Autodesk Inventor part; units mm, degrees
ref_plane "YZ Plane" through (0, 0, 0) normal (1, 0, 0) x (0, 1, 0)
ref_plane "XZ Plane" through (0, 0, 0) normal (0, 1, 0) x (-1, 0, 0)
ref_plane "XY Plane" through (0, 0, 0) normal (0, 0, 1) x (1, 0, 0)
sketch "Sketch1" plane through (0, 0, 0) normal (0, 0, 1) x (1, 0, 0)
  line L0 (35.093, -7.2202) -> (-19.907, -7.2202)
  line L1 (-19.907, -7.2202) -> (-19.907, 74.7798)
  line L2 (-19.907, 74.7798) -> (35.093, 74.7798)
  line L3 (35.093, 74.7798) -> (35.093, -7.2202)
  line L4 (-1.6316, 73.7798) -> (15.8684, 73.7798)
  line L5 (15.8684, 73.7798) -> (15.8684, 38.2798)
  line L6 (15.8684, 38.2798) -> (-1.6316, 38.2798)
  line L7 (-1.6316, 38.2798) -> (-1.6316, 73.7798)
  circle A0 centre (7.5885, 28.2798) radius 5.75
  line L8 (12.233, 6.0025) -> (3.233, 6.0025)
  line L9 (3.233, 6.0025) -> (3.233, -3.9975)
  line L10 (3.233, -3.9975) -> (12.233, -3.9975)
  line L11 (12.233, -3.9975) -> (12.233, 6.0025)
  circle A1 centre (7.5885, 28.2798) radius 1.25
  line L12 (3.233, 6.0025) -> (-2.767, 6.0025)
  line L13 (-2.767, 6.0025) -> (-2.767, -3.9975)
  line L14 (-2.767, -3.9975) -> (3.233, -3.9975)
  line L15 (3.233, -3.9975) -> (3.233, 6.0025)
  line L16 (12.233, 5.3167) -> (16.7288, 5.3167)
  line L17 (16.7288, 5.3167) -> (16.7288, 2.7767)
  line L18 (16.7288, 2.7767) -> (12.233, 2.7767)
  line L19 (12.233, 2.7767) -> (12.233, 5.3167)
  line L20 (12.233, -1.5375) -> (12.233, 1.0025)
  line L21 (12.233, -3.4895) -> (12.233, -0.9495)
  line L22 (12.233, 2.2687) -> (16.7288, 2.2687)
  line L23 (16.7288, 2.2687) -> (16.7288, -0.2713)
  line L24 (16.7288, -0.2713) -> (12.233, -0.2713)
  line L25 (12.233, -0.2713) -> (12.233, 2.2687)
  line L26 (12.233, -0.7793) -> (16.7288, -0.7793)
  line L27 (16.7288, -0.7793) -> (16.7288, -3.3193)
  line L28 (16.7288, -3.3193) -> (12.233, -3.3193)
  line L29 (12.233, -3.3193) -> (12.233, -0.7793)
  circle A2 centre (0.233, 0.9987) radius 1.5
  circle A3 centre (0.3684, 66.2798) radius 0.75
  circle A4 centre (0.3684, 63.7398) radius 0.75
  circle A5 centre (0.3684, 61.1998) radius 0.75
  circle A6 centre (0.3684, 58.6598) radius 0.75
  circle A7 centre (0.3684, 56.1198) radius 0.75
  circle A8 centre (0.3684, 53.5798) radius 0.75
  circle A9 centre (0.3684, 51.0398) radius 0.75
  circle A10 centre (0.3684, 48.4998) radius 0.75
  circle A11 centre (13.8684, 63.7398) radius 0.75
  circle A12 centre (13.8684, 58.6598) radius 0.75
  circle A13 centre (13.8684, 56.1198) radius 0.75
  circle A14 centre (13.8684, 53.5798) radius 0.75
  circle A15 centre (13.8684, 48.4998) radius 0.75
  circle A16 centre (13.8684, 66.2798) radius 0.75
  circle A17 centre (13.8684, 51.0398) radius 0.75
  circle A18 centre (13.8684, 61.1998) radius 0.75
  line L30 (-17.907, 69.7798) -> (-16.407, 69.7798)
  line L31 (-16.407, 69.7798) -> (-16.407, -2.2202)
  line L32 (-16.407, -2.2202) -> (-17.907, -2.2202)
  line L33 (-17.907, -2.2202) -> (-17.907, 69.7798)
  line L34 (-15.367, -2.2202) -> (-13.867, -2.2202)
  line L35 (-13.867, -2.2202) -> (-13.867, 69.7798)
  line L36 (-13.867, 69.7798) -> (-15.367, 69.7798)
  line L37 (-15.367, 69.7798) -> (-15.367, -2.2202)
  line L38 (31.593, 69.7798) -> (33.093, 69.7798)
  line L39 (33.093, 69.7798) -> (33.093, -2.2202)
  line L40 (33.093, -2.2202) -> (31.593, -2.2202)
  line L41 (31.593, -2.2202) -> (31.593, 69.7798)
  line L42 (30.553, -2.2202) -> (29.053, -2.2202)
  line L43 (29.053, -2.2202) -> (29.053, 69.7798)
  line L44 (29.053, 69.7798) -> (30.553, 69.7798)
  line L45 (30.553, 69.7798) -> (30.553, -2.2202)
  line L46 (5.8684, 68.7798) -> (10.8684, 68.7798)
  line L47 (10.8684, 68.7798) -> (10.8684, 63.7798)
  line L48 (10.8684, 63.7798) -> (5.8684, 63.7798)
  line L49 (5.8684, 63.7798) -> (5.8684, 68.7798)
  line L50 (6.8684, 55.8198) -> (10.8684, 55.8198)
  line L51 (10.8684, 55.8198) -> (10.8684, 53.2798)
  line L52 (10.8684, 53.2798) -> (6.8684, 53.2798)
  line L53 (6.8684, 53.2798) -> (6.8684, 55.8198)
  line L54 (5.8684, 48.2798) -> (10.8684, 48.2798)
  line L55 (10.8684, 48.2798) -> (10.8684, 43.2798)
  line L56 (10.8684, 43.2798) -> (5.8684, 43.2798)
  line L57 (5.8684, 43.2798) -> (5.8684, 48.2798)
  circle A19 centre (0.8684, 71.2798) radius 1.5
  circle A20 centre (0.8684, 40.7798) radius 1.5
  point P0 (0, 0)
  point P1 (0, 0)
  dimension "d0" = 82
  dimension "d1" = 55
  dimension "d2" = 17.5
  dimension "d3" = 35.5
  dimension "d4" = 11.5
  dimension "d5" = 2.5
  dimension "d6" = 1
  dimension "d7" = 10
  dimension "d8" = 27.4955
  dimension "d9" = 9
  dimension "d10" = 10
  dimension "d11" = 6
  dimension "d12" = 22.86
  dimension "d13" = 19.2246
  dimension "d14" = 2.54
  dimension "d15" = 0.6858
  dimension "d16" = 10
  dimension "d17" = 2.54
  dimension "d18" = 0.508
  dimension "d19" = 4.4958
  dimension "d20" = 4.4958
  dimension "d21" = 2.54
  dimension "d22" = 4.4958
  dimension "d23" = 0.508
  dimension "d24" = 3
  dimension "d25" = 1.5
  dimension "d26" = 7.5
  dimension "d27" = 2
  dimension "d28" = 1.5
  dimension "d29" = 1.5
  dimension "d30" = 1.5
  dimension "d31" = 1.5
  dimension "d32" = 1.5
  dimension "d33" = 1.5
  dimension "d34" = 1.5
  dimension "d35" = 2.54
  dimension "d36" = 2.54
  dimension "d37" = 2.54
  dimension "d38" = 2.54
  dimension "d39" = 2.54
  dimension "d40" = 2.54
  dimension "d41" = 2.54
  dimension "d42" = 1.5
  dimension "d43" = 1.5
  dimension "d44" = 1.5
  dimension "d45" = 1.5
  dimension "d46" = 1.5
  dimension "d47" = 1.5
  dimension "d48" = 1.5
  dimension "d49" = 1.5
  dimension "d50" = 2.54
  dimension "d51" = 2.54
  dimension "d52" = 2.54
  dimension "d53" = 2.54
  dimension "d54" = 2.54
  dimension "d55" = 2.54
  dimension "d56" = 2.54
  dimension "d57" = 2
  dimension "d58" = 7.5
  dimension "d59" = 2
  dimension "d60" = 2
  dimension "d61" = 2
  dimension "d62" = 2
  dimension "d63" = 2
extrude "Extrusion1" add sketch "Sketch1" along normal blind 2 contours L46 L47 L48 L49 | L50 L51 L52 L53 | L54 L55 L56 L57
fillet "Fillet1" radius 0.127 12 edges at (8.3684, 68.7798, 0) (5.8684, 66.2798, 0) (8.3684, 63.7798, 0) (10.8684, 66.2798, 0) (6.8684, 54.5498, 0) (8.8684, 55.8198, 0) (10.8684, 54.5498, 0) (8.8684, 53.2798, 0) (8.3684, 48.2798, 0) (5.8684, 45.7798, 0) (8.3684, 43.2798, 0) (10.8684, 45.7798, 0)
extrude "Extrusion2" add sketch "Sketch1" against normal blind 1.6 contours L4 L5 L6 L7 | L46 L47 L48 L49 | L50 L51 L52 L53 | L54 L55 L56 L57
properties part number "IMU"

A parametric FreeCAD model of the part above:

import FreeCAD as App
import Part
import Sketcher
from FreeCAD import Vector


def edges_at(feature, points):
    """Names of the edges that pass closest to the given points."""
    edges = feature.Shape.Edges
    near = lambda p: min(range(len(edges)), key=lambda i: edges[i].distToShape(Part.Vertex(*p))[0])
    return sorted({f"Edge{near(p) + 1}" for p in points})

doc = App.newDocument("Part")
body = doc.addObject("PartDesign::Body", "Body")
body.AllowCompound = True

# Sketch on XY plane
sketch1 = body.newObject("Sketcher::SketchObject", "Sketch")
sketch1.AttachmentSupport = (doc.getObject("XY_Plane"), [""])
sketch1.MapMode = "FlatFace"
sketch1.addGeometry([
    Part.LineSegment(Vector(10.8684, 68.7798, 0), Vector(5.8684, 68.7798, 0)),  # 0
    Part.LineSegment(Vector(5.8684, 68.7798, 0), Vector(5.8684, 63.7798, 0)),  # 1
    Part.LineSegment(Vector(5.8684, 63.7798, 0), Vector(10.8684, 63.7798, 0)),  # 2
    Part.LineSegment(Vector(10.8684, 63.7798, 0), Vector(10.8684, 68.7798, 0)),  # 3
    Part.LineSegment(Vector(10.8684, 55.8198, 0), Vector(6.8684, 55.8198, 0)),  # 4
    Part.LineSegment(Vector(6.8684, 55.8198, 0), Vector(6.8684, 53.2798, 0)),  # 5
    Part.LineSegment(Vector(6.8684, 53.2798, 0), Vector(10.8684, 53.2798, 0)),  # 6
    Part.LineSegment(Vector(10.8684, 53.2798, 0), Vector(10.8684, 55.8198, 0)),  # 7
    Part.LineSegment(Vector(10.8684, 48.2798, 0), Vector(5.8684, 48.2798, 0)),  # 8
    Part.LineSegment(Vector(5.8684, 48.2798, 0), Vector(5.8684, 43.2798, 0)),  # 9
    Part.LineSegment(Vector(5.8684, 43.2798, 0), Vector(10.8684, 43.2798, 0)),  # 10
    Part.LineSegment(Vector(10.8684, 43.2798, 0), Vector(10.8684, 48.2798, 0)),  # 11
], False)
sketch1.addConstraint([
    Sketcher.Constraint("Coincident", 0, 2, 1, 1),
    Sketcher.Constraint("Coincident", 1, 2, 2, 1),
    Sketcher.Constraint("Coincident", 2, 2, 3, 1),
    Sketcher.Constraint("Coincident", 3, 2, 0, 1),
    Sketcher.Constraint("Coincident", 4, 2, 5, 1),
    Sketcher.Constraint("Coincident", 5, 2, 6, 1),
    Sketcher.Constraint("Coincident", 6, 2, 7, 1),
    Sketcher.Constraint("Coincident", 7, 2, 4, 1),
    Sketcher.Constraint("Coincident", 8, 2, 9, 1),
    Sketcher.Constraint("Coincident", 9, 2, 10, 1),
    Sketcher.Constraint("Coincident", 10, 2, 11, 1),
    Sketcher.Constraint("Coincident", 11, 2, 8, 1),
    Sketcher.Constraint("Horizontal", 0),
    Sketcher.Constraint("Vertical", 1),
    Sketcher.Constraint("Horizontal", 2),
    Sketcher.Constraint("Vertical", 3),
    Sketcher.Constraint("Horizontal", 4),
    Sketcher.Constraint("Vertical", 5),
    Sketcher.Constraint("Horizontal", 6),
    Sketcher.Constraint("Vertical", 7),
    Sketcher.Constraint("Horizontal", 8),
    Sketcher.Constraint("Vertical", 9),
    Sketcher.Constraint("Horizontal", 10),
    Sketcher.Constraint("Vertical", 11),
    Sketcher.Constraint("Vertical", 3, 2, 6, 2),
    Sketcher.Constraint("Vertical", 1, 2, 8, 2),
    Sketcher.Constraint("Vertical", 7, 2, 10, 2),
    Sketcher.Constraint("Equal", 10, 1),
    Sketcher.Constraint("Equal", 3, 9),
    Sketcher.Constraint("DistanceX", 1, 2, 4, 2, 1.0),
    Sketcher.Constraint("DistanceY", 9, 2, 5, 2, 10.0),
    Sketcher.Constraint("DistanceY", 5, 2, 5, 1, 2.54),
    Sketcher.Constraint("DistanceX", 0, 2, 0, 1, 5.0),
    Sketcher.Constraint("DistanceY", 5, 2, 1, 2, 10.5),
    Sketcher.Constraint("DistanceX", -1, 1, 0, 2, 5.8684),
    Sketcher.Constraint("DistanceY", -1, 1, 0, 2, 68.7798),
])
pad1 = body.newObject("PartDesign::Pad", "Pad")
pad1.Profile = sketch1
pad1.Length = 2
doc.recompute()

fillet = body.newObject("PartDesign::Fillet", "Fillet")
fillet.Base = (pad1, edges_at(pad1, [
    (8.368, 68.78, 0),
    (5.868, 66.28, 0),
    (8.368, 63.78, 0),
    (10.868, 66.28, 0),
    (6.868, 54.55, 0),
    (8.868, 55.82, 0),
    (10.868, 54.55, 0),
    (8.868, 53.28, 0),
    (8.368, 48.28, 0),
    (5.868, 45.78, 0),
    (8.368, 43.28, 0),
    (10.868, 45.78, 0),
]))
fillet.Radius = 0.127

# Sketch on XY plane
sketch2 = body.newObject("Sketcher::SketchObject", "Sketch001")
sketch2.AttachmentSupport = (doc.getObject("XY_Plane"), [""])
sketch2.MapMode = "FlatFace"
sketch2.addGeometry([
    Part.LineSegment(Vector(15.8684, 73.7798, 0), Vector(-1.6316, 73.7798, 0)),  # 0
    Part.LineSegment(Vector(-1.6316, 73.7798, 0), Vector(-1.6316, 38.2798, 0)),  # 1
    Part.LineSegment(Vector(-1.6316, 38.2798, 0), Vector(15.8684, 38.2798, 0)),  # 2
    Part.LineSegment(Vector(15.8684, 38.2798, 0), Vector(15.8684, 73.7798, 0)),  # 3
    Part.Circle(Vector(0.8684, 40.7798, 0), Vector(0, 0, 1), 1.5),  # 4
    Part.Circle(Vector(0.3684, 48.4998, 0), Vector(0, 0, 1), 0.75),  # 5
    Part.Circle(Vector(0.3684, 51.0398, 0), Vector(0, 0, 1), 0.75),  # 6
    Part.Circle(Vector(0.3684, 53.5798, 0), Vector(0, 0, 1), 0.75),  # 7
    Part.Circle(Vector(0.3684, 56.1198, 0), Vector(0, 0, 1), 0.75),  # 8
    Part.Circle(Vector(0.3684, 58.6598, 0), Vector(0, 0, 1), 0.75),  # 9
    Part.Circle(Vector(0.3684, 61.1998, 0), Vector(0, 0, 1), 0.75),  # 10
    Part.Circle(Vector(0.3684, 63.7398, 0), Vector(0, 0, 1), 0.75),  # 11
    Part.Circle(Vector(0.3684, 66.2798, 0), Vector(0, 0, 1), 0.75),  # 12
    Part.Circle(Vector(0.8684, 71.2798, 0), Vector(0, 0, 1), 1.5),  # 13
    Part.Circle(Vector(13.8684, 48.4998, 0), Vector(0, 0, 1), 0.75),  # 14
    Part.Circle(Vector(13.8684, 51.0398, 0), Vector(0, 0, 1), 0.75),  # 15
    Part.Circle(Vector(13.8684, 53.5798, 0), Vector(0, 0, 1), 0.75),  # 16
    Part.Circle(Vector(13.8684, 56.1198, 0), Vector(0, 0, 1), 0.75),  # 17
    Part.Circle(Vector(13.8684, 58.6598, 0), Vector(0, 0, 1), 0.75),  # 18
    Part.Circle(Vector(13.8684, 61.1998, 0), Vector(0, 0, 1), 0.75),  # 19
    Part.Circle(Vector(13.8684, 63.7398, 0), Vector(0, 0, 1), 0.75),  # 20
    Part.Circle(Vector(13.8684, 66.2798, 0), Vector(0, 0, 1), 0.75),  # 21
], False)
sketch2.addConstraint([
    Sketcher.Constraint("Coincident", 0, 2, 1, 1),
    Sketcher.Constraint("Coincident", 1, 2, 2, 1),
    Sketcher.Constraint("Coincident", 2, 2, 3, 1),
    Sketcher.Constraint("Coincident", 3, 2, 0, 1),
    Sketcher.Constraint("Horizontal", 0),
    Sketcher.Constraint("Vertical", 1),
    Sketcher.Constraint("Horizontal", 2),
    Sketcher.Constraint("Vertical", 3),
    Sketcher.Constraint("Equal", 5, 6),
    Sketcher.Constraint("Equal", 6, 7),
    Sketcher.Constraint("Equal", 7, 8),
    Sketcher.Constraint("Equal", 8, 9),
    Sketcher.Constraint("Equal", 9, 10),
    Sketcher.Constraint("Equal", 10, 11),
    Sketcher.Constraint("Equal", 11, 12),
    Sketcher.Constraint("Equal", 4, 13),
    Sketcher.Constraint("Equal", 12, 14),
    Sketcher.Constraint("Equal", 14, 15),
    Sketcher.Constraint("Equal", 15, 16),
    Sketcher.Constraint("Equal", 16, 17),
    Sketcher.Constraint("Equal", 17, 18),
    Sketcher.Constraint("Equal", 18, 19),
    Sketcher.Constraint("Equal", 19, 20),
    Sketcher.Constraint("Equal", 20, 21),
    Sketcher.Constraint("Horizontal", 5, 3, 14, 3),
    Sketcher.Constraint("Horizontal", 6, 3, 15, 3),
    Sketcher.Constraint("Horizontal", 7, 3, 16, 3),
    Sketcher.Constraint("Horizontal", 8, 3, 17, 3),
    Sketcher.Constraint("Horizontal", 9, 3, 18, 3),
    Sketcher.Constraint("Horizontal", 10, 3, 19, 3),
    Sketcher.Constraint("Horizontal", 11, 3, 20, 3),
    Sketcher.Constraint("Horizontal", 12, 3, 21, 3),
    Sketcher.Constraint("Vertical", 5, 3, 6, 3),
    Sketcher.Constraint("Vertical", 6, 3, 7, 3),
    Sketcher.Constraint("Vertical", 7, 3, 8, 3),
    Sketcher.Constraint("Vertical", 8, 3, 9, 3),
    Sketcher.Constraint("Vertical", 9, 3, 10, 3),
    Sketcher.Constraint("Vertical", 10, 3, 11, 3),
    Sketcher.Constraint("Vertical", 11, 3, 12, 3),
    Sketcher.Constraint("Vertical", 4, 3, 13, 3),
    Sketcher.Constraint("Vertical", 14, 3, 15, 3),
    Sketcher.Constraint("Vertical", 15, 3, 16, 3),
    Sketcher.Constraint("Vertical", 16, 3, 17, 3),
    Sketcher.Constraint("Vertical", 17, 3, 18, 3),
    Sketcher.Constraint("Vertical", 18, 3, 19, 3),
    Sketcher.Constraint("Vertical", 19, 3, 20, 3),
    Sketcher.Constraint("Vertical", 20, 3, 21, 3),
    Sketcher.Constraint("Diameter", 4, 3.0),
    Sketcher.Constraint("Diameter", 5, 1.5),
    Sketcher.Constraint("DistanceX", 0, 2, 0, 1, 17.5),
    Sketcher.Constraint("DistanceY", 1, 2, 1, 1, 35.5),
    Sketcher.Constraint("DistanceX", 0, 2, 12, 3, 2.0),
    Sketcher.Constraint("DistanceX", 14, 3, 2, 2, 2.0),
    Sketcher.Constraint("DistanceX", 0, 2, 13, 3, 2.5),
    Sketcher.Constraint("DistanceY", 13, 3, 0, 2, 2.5),
    Sketcher.Constraint("DistanceY", 12, 3, 0, 2, 7.5),
    Sketcher.Constraint("DistanceY", 1, 2, 4, 3, 2.5),
    Sketcher.Constraint("DistanceY", 5, 3, 6, 3, 2.54),
    Sketcher.Constraint("DistanceY", 6, 3, 7, 3, 2.54),
    Sketcher.Constraint("DistanceY", 7, 3, 8, 3, 2.54),
    Sketcher.Constraint("DistanceY", 8, 3, 9, 3, 2.54),
    Sketcher.Constraint("DistanceY", 9, 3, 10, 3, 2.54),
    Sketcher.Constraint("DistanceY", 10, 3, 11, 3, 2.54),
    Sketcher.Constraint("DistanceY", 11, 3, 12, 3, 2.54),
    Sketcher.Constraint("DistanceX", -1, 1, 4, 3, 0.8684),
    Sketcher.Constraint("DistanceY", -1, 1, 4, 3, 40.7798),
])
pad2 = body.newObject("PartDesign::Pad", "Pad001")
pad2.Profile = sketch2
pad2.Length = 1.6
pad2.Reversed = True

doc.recompute()
